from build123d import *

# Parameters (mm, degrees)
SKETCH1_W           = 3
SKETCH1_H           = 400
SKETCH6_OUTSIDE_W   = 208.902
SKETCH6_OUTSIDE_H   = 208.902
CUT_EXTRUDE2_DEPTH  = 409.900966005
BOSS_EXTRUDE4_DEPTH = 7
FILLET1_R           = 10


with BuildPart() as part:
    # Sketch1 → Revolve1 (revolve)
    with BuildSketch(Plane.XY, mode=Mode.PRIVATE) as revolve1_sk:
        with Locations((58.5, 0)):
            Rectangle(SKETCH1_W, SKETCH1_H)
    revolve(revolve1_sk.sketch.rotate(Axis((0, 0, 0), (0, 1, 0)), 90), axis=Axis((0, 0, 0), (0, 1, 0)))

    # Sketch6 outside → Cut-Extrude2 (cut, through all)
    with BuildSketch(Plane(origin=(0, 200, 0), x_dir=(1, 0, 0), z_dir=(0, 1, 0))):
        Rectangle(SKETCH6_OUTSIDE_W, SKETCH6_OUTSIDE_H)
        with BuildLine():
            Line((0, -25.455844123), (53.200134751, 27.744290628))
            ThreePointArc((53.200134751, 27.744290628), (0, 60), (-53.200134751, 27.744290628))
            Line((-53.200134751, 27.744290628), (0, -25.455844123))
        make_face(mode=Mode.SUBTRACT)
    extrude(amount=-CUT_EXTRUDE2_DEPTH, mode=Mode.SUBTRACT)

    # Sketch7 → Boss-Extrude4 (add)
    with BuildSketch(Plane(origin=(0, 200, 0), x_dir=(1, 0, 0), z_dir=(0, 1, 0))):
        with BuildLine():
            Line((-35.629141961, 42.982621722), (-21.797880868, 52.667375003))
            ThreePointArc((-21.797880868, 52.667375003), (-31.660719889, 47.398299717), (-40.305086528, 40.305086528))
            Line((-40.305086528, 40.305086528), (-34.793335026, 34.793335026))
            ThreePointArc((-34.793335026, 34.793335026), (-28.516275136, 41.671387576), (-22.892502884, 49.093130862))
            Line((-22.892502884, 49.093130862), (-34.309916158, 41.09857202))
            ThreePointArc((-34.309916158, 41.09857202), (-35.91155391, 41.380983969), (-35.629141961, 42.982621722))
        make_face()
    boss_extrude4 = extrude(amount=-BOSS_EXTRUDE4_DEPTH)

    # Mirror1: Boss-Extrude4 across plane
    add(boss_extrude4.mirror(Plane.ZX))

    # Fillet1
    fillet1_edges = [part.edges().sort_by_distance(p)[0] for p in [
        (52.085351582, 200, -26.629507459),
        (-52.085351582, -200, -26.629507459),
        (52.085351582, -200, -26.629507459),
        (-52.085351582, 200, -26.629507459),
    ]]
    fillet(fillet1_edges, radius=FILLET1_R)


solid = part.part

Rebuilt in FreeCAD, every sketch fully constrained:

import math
import FreeCAD as App
import Part
import Sketcher
Q = App.Units.Quantity


def edges_at(feature, points):
    """Names of the edges that pass closest to the given points."""
    edges = feature.Shape.Edges
    near = lambda p: min(range(len(edges)), key=lambda i: edges[i].distToShape(Part.Vertex(*p))[0])
    return sorted({f"Edge{near(p) + 1}" for p in points})


def add_polygon(sketch, points):
    """Adds a closed chain of lines whose ends are joined by coincident constraints."""
    first, n = sketch.GeometryCount, len(points)
    for a, b in zip(points, points[1:] + points[:1]):
        sketch.addGeometry(Part.LineSegment(App.Vector(*a, 0), App.Vector(*b, 0)), False)
    for i in range(n):
        sketch.addConstraint(Sketcher.Constraint("Coincident", first + i, 2, first + (i + 1) % n, 1))

doc = App.newDocument("Part")
body = doc.addObject("PartDesign::Body", "Body")

# Sketch on XY plane
sketch1 = body.newObject("Sketcher::SketchObject", "Sketch")
sketch1.AttachmentSupport = (doc.getObject("XY_Plane"), [""])
sketch1.MapMode = "FlatFace"
add_polygon(sketch1, [(57, 200), (57, -200), (60, -200), (60, 200)])  # lines 0-3
sketch1.addConstraint([
    Sketcher.Constraint("Vertical", 0),
    Sketcher.Constraint("Horizontal", 1),
    Sketcher.Constraint("Vertical", 2),
    Sketcher.Constraint("Horizontal", 3),
    Sketcher.Constraint("DistanceX", 1, 1, 1, 2, Q("3 mm")),
    Sketcher.Constraint("DistanceY", 0, 2, 0, 1, Q("400 mm")),
    Sketcher.Constraint("DistanceX", -1, 1, 0, 2, Q("57 mm")),
    Sketcher.Constraint("DistanceY", 0, 2, -1, 1, Q("200 mm")),
])
revolution = body.newObject("PartDesign::Revolution", "Revolution")
revolution.Profile = sketch1
revolution.ReferenceAxis = (sketch1, ["V_Axis"])
revolution.Angle = 360

# Sketch on XZ plane
sketch2 = body.newObject("Sketcher::SketchObject", "Sketch001")
sketch2.AttachmentSupport = (doc.getObject("XZ_Plane"), [""])
sketch2.MapMode = "FlatFace"
sketch2.AttachmentOffset = App.Placement(App.Vector(0, 0, -200), App.Rotation())
add_polygon(sketch2, [(-104, -104), (-104, 104), (104, 104), (104, -104)])  # lines 0-3
sketch2.addGeometry(Part.LineSegment(App.Vector(53, -28, 0), App.Vector(0, 25, 0)), False)  # 4
sketch2.addGeometry(Part.LineSegment(App.Vector(0, 25, 0), App.Vector(-53, -28, 0)), False)  # 5
sketch2.addGeometry(Part.ArcOfCircle(Part.Circle(App.Vector(0, 0, 0), App.Vector(0, 0, 1), 60), math.radians(-152), math.radians(-28)), False)  # 6
sketch2.addConstraint([
    Sketcher.Constraint("Coincident", 4, 2, 5, 1),
    Sketcher.Constraint("Coincident", 5, 2, 6, 1),
    Sketcher.Constraint("Coincident", 6, 2, 4, 1),
    Sketcher.Constraint("Vertical", 0),
    Sketcher.Constraint("Horizontal", 1),
    Sketcher.Constraint("Vertical", 2),
    Sketcher.Constraint("Horizontal", 3),
    Sketcher.Constraint("Coincident", 6, 3, -1, 1),
    Sketcher.Constraint("Symmetric", 0, 2, 2, 2, -1, 1),
    Sketcher.Constraint("PointOnObject", 4, 2, -2),
    Sketcher.Constraint("Perpendicular", 4, 5),
    Sketcher.Constraint("Horizontal", 5, 2, 6, 2),
    Sketcher.Constraint("Equal", 3, 0),
    Sketcher.Constraint("Radius", 6, Q("60 mm")),
    Sketcher.Constraint("DistanceX", 1, 1, 1, 2, Q("208.902 mm")),
    Sketcher.Constraint("DistanceY", 5, 2, -1, 1, Q("27.744291 mm")),
])
pocket1 = body.newObject("PartDesign::Pocket", "Pocket")
pocket1.Profile = sketch2
pocket1.Type = "ThroughAll"
pocket1.Reversed = True

# Sketch on XZ plane
sketch3 = body.newObject("Sketcher::SketchObject", "Sketch002")
sketch3.AttachmentSupport = (doc.getObject("XZ_Plane"), [""])
sketch3.MapMode = "FlatFace"
sketch3.AttachmentOffset = App.Placement(App.Vector(0, 0, -200), App.Rotation())
sketch3.addGeometry([
    Part.LineSegment(App.Vector(-35.6, -43, 0), App.Vector(-21.8, -52.7, 0)),  # 0
    Part.ArcOfCircle(Part.Circle(App.Vector(0, 0, 0), App.Vector(0, 0, 1), 57), math.radians(-135), math.radians(-112)),  # 1
    Part.LineSegment(App.Vector(-40.3, -40.3, 0), App.Vector(-34.8, -34.8, 0)),  # 2
    Part.ArcOfCircle(Part.Circle(App.Vector(-106.9, -106.9, 0), App.Vector(0, 0, 1), 102), math.radians(34.54), math.radians(45)),  # 3
    Part.LineSegment(App.Vector(-22.9, -49.1, 0), App.Vector(-34.3, -41.1, 0)),  # 4
    Part.ArcOfCircle(Part.Circle(App.Vector(-35, -42, 0), App.Vector(0, 0, 1), 1.1), math.radians(55), math.radians(235)),  # 5
], False)
sketch3.addConstraint([
    Sketcher.Constraint("Coincident", 0, 2, 1, 2),
    Sketcher.Constraint("Coincident", 1, 1, 2, 1),
    Sketcher.Constraint("Coincident", 2, 2, 3, 2),
    Sketcher.Constraint("Coincident", 3, 1, 4, 1),
    Sketcher.Constraint("Tangent", 4, 2, 5, 1),
    Sketcher.Constraint("Tangent", 5, 2, 0, 1),
    Sketcher.Constraint("Coincident", 1, 3, -1, 1),
    Sketcher.Constraint("Parallel", 0, 4),
    Sketcher.Constraint("Radius", 1, Q("57 mm")),
    Sketcher.Constraint("Angle", 0, Q("-35 deg")),
    Sketcher.Constraint("Angle", 2, Q("45 deg")),
    Sketcher.Constraint("Radius", 5, Q("1.15 mm")),
    Sketcher.Constraint("Radius", 3, Q("102.018857 mm")),
    Sketcher.Constraint("DistanceX", 3, 3, -1, 1, Q("106.93156 mm")),
    Sketcher.Constraint("DistanceY", 3, 3, -1, 1, Q("106.93156 mm")),
    Sketcher.Constraint("DistanceX", 5, 3, -1, 1, Q("34.969529 mm")),
    Sketcher.Constraint("DistanceX", 0, 2, -1, 1, Q("21.797881 mm")),
    Sketcher.Constraint("DistanceY", 5, 3, 1, 1, Q("1.73551 mm")),
])
pad1 = body.newObject("PartDesign::Pad", "Pad")
pad1.Profile = sketch3
pad1.Length = 7
doc.recompute()

mirrored = body.newObject("PartDesign::Mirrored", "Mirrored")
mirrored.Originals = [pad1]
mirrored.MirrorPlane = (doc.getObject("XZ_Plane"), [""])
body.Tip = mirrored
doc.recompute()

fillet = body.newObject("PartDesign::Fillet", "Fillet")
fillet.Base = (mirrored, edges_at(mirrored, [
    (52.085, 200, -26.63),
    (-52.085, -200, -26.63),
    (52.085, -200, -26.63),
    (-52.085, 200, -26.63),
]))
fillet.Radius = 10

doc.recompute()
